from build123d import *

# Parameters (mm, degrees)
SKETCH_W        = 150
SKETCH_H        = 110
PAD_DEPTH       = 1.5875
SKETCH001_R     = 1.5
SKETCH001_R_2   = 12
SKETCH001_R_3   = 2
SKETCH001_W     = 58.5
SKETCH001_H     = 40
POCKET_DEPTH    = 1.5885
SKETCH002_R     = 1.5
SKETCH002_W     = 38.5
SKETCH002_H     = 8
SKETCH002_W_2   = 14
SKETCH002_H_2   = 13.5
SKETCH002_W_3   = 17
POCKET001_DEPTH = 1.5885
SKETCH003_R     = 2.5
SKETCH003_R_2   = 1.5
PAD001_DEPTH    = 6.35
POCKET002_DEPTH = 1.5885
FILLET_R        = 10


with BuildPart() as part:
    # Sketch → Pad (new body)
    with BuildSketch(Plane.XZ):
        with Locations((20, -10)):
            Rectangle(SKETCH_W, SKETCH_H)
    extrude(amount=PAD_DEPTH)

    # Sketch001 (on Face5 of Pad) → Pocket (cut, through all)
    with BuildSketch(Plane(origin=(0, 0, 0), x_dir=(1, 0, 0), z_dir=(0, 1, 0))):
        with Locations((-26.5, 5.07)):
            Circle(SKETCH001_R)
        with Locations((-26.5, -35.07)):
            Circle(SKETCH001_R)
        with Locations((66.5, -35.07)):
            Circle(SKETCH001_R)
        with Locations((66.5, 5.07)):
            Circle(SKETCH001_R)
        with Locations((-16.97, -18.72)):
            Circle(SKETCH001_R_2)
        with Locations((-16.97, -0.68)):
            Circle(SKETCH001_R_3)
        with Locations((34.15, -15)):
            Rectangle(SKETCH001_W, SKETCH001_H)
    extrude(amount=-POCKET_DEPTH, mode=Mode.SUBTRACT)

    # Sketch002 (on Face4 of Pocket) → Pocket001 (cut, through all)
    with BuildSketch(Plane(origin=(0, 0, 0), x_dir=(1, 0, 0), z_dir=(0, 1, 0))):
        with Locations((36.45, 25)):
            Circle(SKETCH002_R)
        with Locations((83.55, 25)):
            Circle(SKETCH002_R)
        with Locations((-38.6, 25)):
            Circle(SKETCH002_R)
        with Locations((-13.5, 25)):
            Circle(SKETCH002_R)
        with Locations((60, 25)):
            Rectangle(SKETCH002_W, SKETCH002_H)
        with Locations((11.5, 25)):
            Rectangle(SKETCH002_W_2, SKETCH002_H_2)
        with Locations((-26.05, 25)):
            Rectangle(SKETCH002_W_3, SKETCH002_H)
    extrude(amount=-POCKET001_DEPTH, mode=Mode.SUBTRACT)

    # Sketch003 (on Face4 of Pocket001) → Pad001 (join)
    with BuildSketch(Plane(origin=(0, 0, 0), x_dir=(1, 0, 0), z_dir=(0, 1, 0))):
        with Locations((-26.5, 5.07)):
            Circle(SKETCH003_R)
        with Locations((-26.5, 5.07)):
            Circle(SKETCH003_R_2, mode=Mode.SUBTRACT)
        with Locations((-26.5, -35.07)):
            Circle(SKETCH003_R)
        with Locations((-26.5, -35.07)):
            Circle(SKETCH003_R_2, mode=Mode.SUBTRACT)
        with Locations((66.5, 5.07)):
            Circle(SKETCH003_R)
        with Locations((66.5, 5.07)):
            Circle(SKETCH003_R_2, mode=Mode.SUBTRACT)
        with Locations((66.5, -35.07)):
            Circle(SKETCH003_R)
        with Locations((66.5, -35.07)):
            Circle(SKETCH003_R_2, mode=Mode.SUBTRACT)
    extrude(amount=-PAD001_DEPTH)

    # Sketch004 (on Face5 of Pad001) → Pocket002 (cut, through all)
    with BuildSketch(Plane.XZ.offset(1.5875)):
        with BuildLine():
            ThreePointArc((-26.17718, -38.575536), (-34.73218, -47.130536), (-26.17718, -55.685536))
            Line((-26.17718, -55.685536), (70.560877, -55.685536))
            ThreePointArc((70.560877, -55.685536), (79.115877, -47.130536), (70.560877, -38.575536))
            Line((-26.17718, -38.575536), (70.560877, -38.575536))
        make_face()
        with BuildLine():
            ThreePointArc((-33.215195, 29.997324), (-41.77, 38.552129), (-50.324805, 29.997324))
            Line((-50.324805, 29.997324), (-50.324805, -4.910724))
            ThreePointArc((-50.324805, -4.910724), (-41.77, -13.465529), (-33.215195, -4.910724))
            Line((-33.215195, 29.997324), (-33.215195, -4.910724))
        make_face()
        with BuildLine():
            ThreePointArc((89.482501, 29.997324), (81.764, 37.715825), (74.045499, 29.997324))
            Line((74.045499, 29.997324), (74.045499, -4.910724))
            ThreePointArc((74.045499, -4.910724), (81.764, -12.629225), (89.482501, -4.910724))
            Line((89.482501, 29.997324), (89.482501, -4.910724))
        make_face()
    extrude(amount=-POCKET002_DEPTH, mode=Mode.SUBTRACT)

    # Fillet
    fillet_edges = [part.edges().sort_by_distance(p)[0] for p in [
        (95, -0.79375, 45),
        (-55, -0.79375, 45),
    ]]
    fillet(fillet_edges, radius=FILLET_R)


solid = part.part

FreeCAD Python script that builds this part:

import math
import FreeCAD as App
import Part
import Sketcher
from FreeCAD import Vector
Q = App.Units.Quantity


def edges_at(feature, points):
    """Names of the edges that pass closest to the given points."""
    edges = feature.Shape.Edges
    near = lambda p: min(range(len(edges)), key=lambda i: edges[i].distToShape(Part.Vertex(*p))[0])
    return sorted({f"Edge{near(p) + 1}" for p in points})

doc = App.newDocument("Part")
body = doc.addObject("PartDesign::Body", "Body")

# Sketch on XZ plane
sketch1 = body.newObject("Sketcher::SketchObject", "Sketch")
sketch1.AttachmentSupport = (doc.getObject("XZ_Plane"), [""])
sketch1.MapMode = "FlatFace"
sketch1.addGeometry(Part.LineSegment(Vector(-55, 45, 0), Vector(-55, -65, 0)), False)
sketch1.addGeometry(Part.LineSegment(Vector(-55, -65, 0), Vector(95, -65, 0)), False)
sketch1.addGeometry(Part.LineSegment(Vector(95, -65, 0), Vector(95, 45, 0)), False)
sketch1.addGeometry(Part.LineSegment(Vector(95, 45, 0), Vector(-55, 45, 0)), False)
sketch1.addConstraint(Sketcher.Constraint("Coincident", 0, 2, 1, 1))
sketch1.addConstraint(Sketcher.Constraint("Coincident", 1, 2, 2, 1))
sketch1.addConstraint(Sketcher.Constraint("Coincident", 2, 2, 3, 1))
sketch1.addConstraint(Sketcher.Constraint("Coincident", 3, 2, 0, 1))
sketch1.addConstraint(Sketcher.Constraint("Vertical", 0))
sketch1.addConstraint(Sketcher.Constraint("Horizontal", 1))
sketch1.addConstraint(Sketcher.Constraint("Vertical", 2))
sketch1.addConstraint(Sketcher.Constraint("Horizontal", 3))
sketch1.addConstraint(Sketcher.Constraint("DistanceX", 1, 1, 1, 2, Q("150 mm")))
sketch1.addConstraint(Sketcher.Constraint("DistanceY", 0, 2, 0, 1, Q("110 mm")))
sketch1.addConstraint(Sketcher.Constraint("DistanceX", 0, 2, -1, 1, Q("55 mm")))
sketch1.addConstraint(Sketcher.Constraint("DistanceY", 0, 2, -1, 1, Q("65 mm")))
pad1 = body.newObject("PartDesign::Pad", "Pad")
pad1.Profile = sketch1
pad1.Length = 1.5875

# Sketch on XZ plane
sketch2 = body.newObject("Sketcher::SketchObject", "Sketch001")
sketch2.AttachmentSupport = (doc.getObject("XZ_Plane"), [""])
sketch2.MapMode = "FlatFace"
sketch2.addGeometry(Part.Circle(Vector(-26.5, -5.1, 0), Vector(0, 0, 1), 1.5), False)
sketch2.addGeometry(Part.Circle(Vector(-26.5, 35.1, 0), Vector(0, 0, 1), 1.5), False)
sketch2.addGeometry(Part.Circle(Vector(66.5, 35.1, 0), Vector(0, 0, 1), 1.5), False)
sketch2.addGeometry(Part.Circle(Vector(66.5, -5.1, 0), Vector(0, 0, 1), 1.5), False)
sketch2.addGeometry(Part.Circle(Vector(-17, 18.7, 0), Vector(0, 0, 1), 12), False)
sketch2.addGeometry(Part.Circle(Vector(-17, 0.7, 0), Vector(0, 0, 1), 2), False)
sketch2.addGeometry(Part.LineSegment(Vector(4.9, -5, 0), Vector(4.9, 35, 0)), False)
sketch2.addGeometry(Part.LineSegment(Vector(4.9, 35, 0), Vector(63.4, 35, 0)), False)
sketch2.addGeometry(Part.LineSegment(Vector(63.4, 35, 0), Vector(63.4, -5, 0)), False)
sketch2.addGeometry(Part.LineSegment(Vector(63.4, -5, 0), Vector(4.9, -5, 0)), False)
sketch2.addConstraint(Sketcher.Constraint("Coincident", 6, 2, 7, 1))
sketch2.addConstraint(Sketcher.Constraint("Coincident", 7, 2, 8, 1))
sketch2.addConstraint(Sketcher.Constraint("Coincident", 8, 2, 9, 1))
sketch2.addConstraint(Sketcher.Constraint("Coincident", 9, 2, 6, 1))
sketch2.addConstraint(Sketcher.Constraint("Vertical", 6))
sketch2.addConstraint(Sketcher.Constraint("Horizontal", 7))
sketch2.addConstraint(Sketcher.Constraint("Vertical", 8))
sketch2.addConstraint(Sketcher.Constraint("Horizontal", 9))
sketch2.addConstraint(Sketcher.Constraint("Equal", 0, 1))
sketch2.addConstraint(Sketcher.Constraint("Equal", 1, 2))
sketch2.addConstraint(Sketcher.Constraint("Equal", 2, 3))
sketch2.addConstraint(Sketcher.Constraint("Horizontal", 1, 3, 2, 3))
sketch2.addConstraint(Sketcher.Constraint("Horizontal", 0, 3, 3, 3))
sketch2.addConstraint(Sketcher.Constraint("Vertical", 0, 3, 1, 3))
sketch2.addConstraint(Sketcher.Constraint("Vertical", 2, 3, 3, 3))
sketch2.addConstraint(Sketcher.Constraint("Vertical", 4, 3, 5, 3))
sketch2.addConstraint(Sketcher.Constraint("Diameter", 0, Q("3 mm")))
sketch2.addConstraint(Sketcher.Constraint("Diameter", 4, Q("24 mm")))
sketch2.addConstraint(Sketcher.Constraint("Diameter", 5, Q("4 mm")))
sketch2.addConstraint(Sketcher.Constraint("DistanceY", 6, 1, 6, 2, Q("40 mm")))
sketch2.addConstraint(Sketcher.Constraint("DistanceX", 7, 1, 7, 2, Q("58.5 mm")))
sketch2.addConstraint(Sketcher.Constraint("DistanceY", -1, 1, 6, 2, Q("35 mm")))
sketch2.addConstraint(Sketcher.Constraint("DistanceX", 1, 3, 2, 3, Q("93 mm")))
sketch2.addConstraint(Sketcher.Constraint("DistanceX", 0, 3, -1, 1, Q("26.5 mm")))
sketch2.addConstraint(Sketcher.Constraint("DistanceX", -1, 1, 6, 2, Q("4.9 mm")))
sketch2.addConstraint(Sketcher.Constraint("DistanceY", 0, 3, -1, 1, Q("5.07 mm")))
sketch2.addConstraint(Sketcher.Constraint("DistanceY", -1, 1, 1, 3, Q("35.07 mm")))
sketch2.addConstraint(Sketcher.Constraint("DistanceX", 4, 3, -1, 1, Q("16.97 mm")))
sketch2.addConstraint(Sketcher.Constraint("DistanceY", -1, 1, 4, 3, Q("18.72 mm")))
sketch2.addConstraint(Sketcher.Constraint("DistanceY", -1, 1, 5, 3, Q("0.68 mm")))
pocket1 = body.newObject("PartDesign::Pocket", "Pocket")
pocket1.Profile = sketch2
pocket1.Type = "ThroughAll"
pocket1.Reversed = True

# Sketch on XZ plane
sketch3 = body.newObject("Sketcher::SketchObject", "Sketch002")
sketch3.AttachmentSupport = (doc.getObject("XZ_Plane"), [""])
sketch3.MapMode = "FlatFace"
sketch3.addGeometry(Part.Circle(Vector(36.5, -25, 0), Vector(0, 0, 1), 1.5), False)
sketch3.addGeometry(Part.Circle(Vector(83.5, -25, 0), Vector(0, 0, 1), 1.5), False)
sketch3.addGeometry(Part.Circle(Vector(-38.6, -25, 0), Vector(0, 0, 1), 1.5), False)
sketch3.addGeometry(Part.Circle(Vector(-13.5, -25, 0), Vector(0, 0, 1), 1.5), False)
sketch3.addGeometry(Part.LineSegment(Vector(40.8, -29, 0), Vector(40.8, -21, 0)), False)
sketch3.addGeometry(Part.LineSegment(Vector(40.8, -21, 0), Vector(79.2, -21, 0)), False)
sketch3.addGeometry(Part.LineSegment(Vector(79.2, -21, 0), Vector(79.2, -29, 0)), False)
sketch3.addGeometry(Part.LineSegment(Vector(79.2, -29, 0), Vector(40.8, -29, 0)), False)
sketch3.addGeometry(Part.LineSegment(Vector(4.5, -31.8, 0), Vector(4.5, -18.2, 0)), False)
sketch3.addGeometry(Part.LineSegment(Vector(4.5, -18.2, 0), Vector(18.5, -18.2, 0)), False)
sketch3.addGeometry(Part.LineSegment(Vector(18.5, -18.2, 0), Vector(18.5, -31.8, 0)), False)
sketch3.addGeometry(Part.LineSegment(Vector(18.5, -31.8, 0), Vector(4.5, -31.8, 0)), False)
sketch3.addGeometry(Part.LineSegment(Vector(-34.5, -29, 0), Vector(-34.5, -21, 0)), False)
sketch3.addGeometry(Part.LineSegment(Vector(-34.5, -21, 0), Vector(-17.6, -21, 0)), False)
sketch3.addGeometry(Part.LineSegment(Vector(-17.6, -21, 0), Vector(-17.6, -29, 0)), False)
sketch3.addGeometry(Part.LineSegment(Vector(-17.6, -29, 0), Vector(-34.5, -29, 0)), False)
sketch3.addConstraint(Sketcher.Constraint("Coincident", 4, 2, 5, 1))
sketch3.addConstraint(Sketcher.Constraint("Coincident", 5, 2, 6, 1))
sketch3.addConstraint(Sketcher.Constraint("Coincident", 6, 2, 7, 1))
sketch3.addConstraint(Sketcher.Constraint("Coincident", 7, 2, 4, 1))
sketch3.addConstraint(Sketcher.Constraint("Coincident", 8, 2, 9, 1))
sketch3.addConstraint(Sketcher.Constraint("Coincident", 9, 2, 10, 1))
sketch3.addConstraint(Sketcher.Constraint("Coincident", 10, 2, 11, 1))
sketch3.addConstraint(Sketcher.Constraint("Coincident", 11, 2, 8, 1))
sketch3.addConstraint(Sketcher.Constraint("Coincident", 12, 2, 13, 1))
sketch3.addConstraint(Sketcher.Constraint("Coincident", 13, 2, 14, 1))
sketch3.addConstraint(Sketcher.Constraint("Coincident", 14, 2, 15, 1))
sketch3.addConstraint(Sketcher.Constraint("Coincident", 15, 2, 12, 1))
sketch3.addConstraint(Sketcher.Constraint("Vertical", 4))
sketch3.addConstraint(Sketcher.Constraint("Horizontal", 5))
sketch3.addConstraint(Sketcher.Constraint("Vertical", 6))
sketch3.addConstraint(Sketcher.Constraint("Horizontal", 7))
sketch3.addConstraint(Sketcher.Constraint("Vertical", 8))
sketch3.addConstraint(Sketcher.Constraint("Horizontal", 9))
sketch3.addConstraint(Sketcher.Constraint("Vertical", 10))
sketch3.addConstraint(Sketcher.Constraint("Horizontal", 11))
sketch3.addConstraint(Sketcher.Constraint("Vertical", 12))
sketch3.addConstraint(Sketcher.Constraint("Horizontal", 13))
sketch3.addConstraint(Sketcher.Constraint("Vertical", 14))
sketch3.addConstraint(Sketcher.Constraint("Horizontal", 15))
sketch3.addConstraint(Sketcher.Constraint("Equal", 0, 1))
sketch3.addConstraint(Sketcher.Constraint("Equal", 1, 2))
sketch3.addConstraint(Sketcher.Constraint("Equal", 2, 3))
sketch3.addConstraint(Sketcher.Constraint("Horizontal", 0, 3, 1, 3))
sketch3.addConstraint(Sketcher.Constraint("Horizontal", 1, 3, 2, 3))
sketch3.addConstraint(Sketcher.Constraint("Horizontal", 2, 3, 3, 3))
sketch3.addConstraint(Sketcher.Constraint("Horizontal", 5, 2, 12, 2))
sketch3.addConstraint(Sketcher.Constraint("Horizontal", 7, 2, 14, 2))
sketch3.addConstraint(Sketcher.Constraint("Diameter", 0, Q("3 mm")))
sketch3.addConstraint(Sketcher.Constraint("DistanceX", 9, 1, 9, 2, Q("14 mm")))
sketch3.addConstraint(Sketcher.Constraint("DistanceX", 13, 1, 13, 2, Q("17 mm")))
sketch3.addConstraint(Sketcher.Constraint("DistanceY", 4, 1, 4, 2, Q("8 mm")))
sketch3.addConstraint(Sketcher.Constraint("DistanceX", 5, 1, 5, 2, Q("38.5 mm")))
sketch3.addConstraint(Sketcher.Constraint("DistanceY", 8, 1, 8, 2, Q("13.5 mm")))
sketch3.addConstraint(Sketcher.Constraint("DistanceY", 0, 3, -1, 1, Q("25 mm")))
sketch3.addConstraint(Sketcher.Constraint("DistanceY", 4, 2, -1, 1, Q("21 mm")))
sketch3.addConstraint(Sketcher.Constraint("DistanceX", 3, 3, 8, 2, Q("18 mm")))
sketch3.addConstraint(Sketcher.Constraint("DistanceX", 2, 3, -1, 1, Q("38.6 mm")))
sketch3.addConstraint(Sketcher.Constraint("DistanceX", 3, 3, -1, 1, Q("13.5 mm")))
sketch3.addConstraint(Sketcher.Constraint("DistanceX", 0, 3, 1, 3, Q("47.1 mm")))
sketch3.addConstraint(Sketcher.Constraint("DistanceX", 0, 3, 4, 2, Q("4.3 mm")))
sketch3.addConstraint(Sketcher.Constraint("DistanceX", -1, 1, 0, 3, Q("36.45 mm")))
sketch3.addConstraint(Sketcher.Constraint("DistanceY", 8, 2, -1, 1, Q("18.25 mm")))
sketch3.addConstraint(Sketcher.Constraint("DistanceX", 12, 2, -1, 1, Q("34.55 mm")))
pocket2 = body.newObject("PartDesign::Pocket", "Pocket001")
pocket2.Profile = sketch3
pocket2.Type = "ThroughAll"
pocket2.Reversed = True

# Sketch on XZ plane
sketch4 = body.newObject("Sketcher::SketchObject", "Sketch003")
sketch4.AttachmentSupport = (doc.getObject("XZ_Plane"), [""])
sketch4.MapMode = "FlatFace"
sketch4.addGeometry(Part.Circle(Vector(-26.5, -5.1, 0), Vector(0, 0, 1), 2.5), False)
sketch4.addGeometry(Part.Circle(Vector(-26.5, -5.1, 0), Vector(0, 0, 1), 1.5), False)
sketch4.addGeometry(Part.Circle(Vector(-26.5, 35.1, 0), Vector(0, 0, 1), 2.5), False)
sketch4.addGeometry(Part.Circle(Vector(-26.5, 35.1, 0), Vector(0, 0, 1), 1.5), False)
sketch4.addGeometry(Part.Circle(Vector(66.5, -5.1, 0), Vector(0, 0, 1), 2.5), False)
sketch4.addGeometry(Part.Circle(Vector(66.5, -5.1, 0), Vector(0, 0, 1), 1.5), False)
sketch4.addGeometry(Part.Circle(Vector(66.5, 35.1, 0), Vector(0, 0, 1), 2.5), False)
sketch4.addGeometry(Part.Circle(Vector(66.5, 35.1, 0), Vector(0, 0, 1), 1.5), False)
sketch4.addConstraint(Sketcher.Constraint("Coincident", 1, 3, 0, 3))
sketch4.addConstraint(Sketcher.Constraint("Coincident", 3, 3, 2, 3))
sketch4.addConstraint(Sketcher.Constraint("Coincident", 5, 3, 4, 3))
sketch4.addConstraint(Sketcher.Constraint("Coincident", 7, 3, 6, 3))
sketch4.addConstraint(Sketcher.Constraint("Equal", 0, 2))
sketch4.addConstraint(Sketcher.Constraint("Equal", 1, 3))
sketch4.addConstraint(Sketcher.Constraint("Equal", 2, 4))
sketch4.addConstraint(Sketcher.Constraint("Equal", 3, 5))
sketch4.addConstraint(Sketcher.Constraint("Equal", 4, 6))
sketch4.addConstraint(Sketcher.Constraint("Equal", 5, 7))
sketch4.addConstraint(Sketcher.Constraint("Horizontal", 1, 3, 4, 3))
sketch4.addConstraint(Sketcher.Constraint("Horizontal", 3, 3, 6, 3))
sketch4.addConstraint(Sketcher.Constraint("Vertical", 1, 3, 2, 3))
sketch4.addConstraint(Sketcher.Constraint("Vertical", 5, 3, 6, 3))
sketch4.addConstraint(Sketcher.Constraint("Diameter", 0, Q("5 mm")))
sketch4.addConstraint(Sketcher.Constraint("Diameter", 1, Q("3 mm")))
sketch4.addConstraint(Sketcher.Constraint("DistanceX", 0, 3, 4, 3, Q("93 mm")))
sketch4.addConstraint(Sketcher.Constraint("DistanceX", 0, 3, -1, 1, Q("26.5 mm")))
sketch4.addConstraint(Sketcher.Constraint("DistanceY", 0, 3, -1, 1, Q("5.07 mm")))
sketch4.addConstraint(Sketcher.Constraint("DistanceY", -1, 1, 2, 3, Q("35.07 mm")))
pad2 = body.newObject("PartDesign::Pad", "Pad001")
pad2.Profile = sketch4
pad2.Length = 6.35

# Sketch on XZ plane
sketch5 = body.newObject("Sketcher::SketchObject", "Sketch004")
sketch5.AttachmentSupport = (doc.getObject("XZ_Plane"), [""])
sketch5.MapMode = "FlatFace"
sketch5.AttachmentOffset = App.Placement(Vector(0, 0, 1.5875), App.Rotation())
sketch5.addGeometry(Part.ArcOfCircle(Part.Circle(Vector(-26, -47, 0), Vector(0, 0, 1), 9), math.radians(90), math.radians(270)), False)
sketch5.addGeometry(Part.LineSegment(Vector(-26, -56, 0), Vector(71, -56, 0)), False)
sketch5.addGeometry(Part.ArcOfCircle(Part.Circle(Vector(71, -47, 0), Vector(0, 0, 1), 9), math.radians(-90), math.radians(90)), False)
sketch5.addGeometry(Part.LineSegment(Vector(71, -39, 0), Vector(-26, -39, 0)), False)
sketch5.addGeometry(Part.ArcOfCircle(Part.Circle(Vector(-42, 30, 0), Vector(0, 0, 1), 9), math.radians(0), math.radians(180)), False)
sketch5.addGeometry(Part.LineSegment(Vector(-50, 30, 0), Vector(-50, -5, 0)), False)
sketch5.addGeometry(Part.ArcOfCircle(Part.Circle(Vector(-42, -5, 0), Vector(0, 0, 1), 9), math.radians(180), math.radians(360)), False)
sketch5.addGeometry(Part.LineSegment(Vector(-33, -5, 0), Vector(-33, 30, 0)), False)
sketch5.addGeometry(Part.ArcOfCircle(Part.Circle(Vector(82, 30, 0), Vector(0, 0, 1), 8), math.radians(0), math.radians(180)), False)
sketch5.addGeometry(Part.LineSegment(Vector(74, 30, 0), Vector(74, -5, 0)), False)
sketch5.addGeometry(Part.ArcOfCircle(Part.Circle(Vector(82, -5, 0), Vector(0, 0, 1), 8), math.radians(180), math.radians(360)), False)
sketch5.addGeometry(Part.LineSegment(Vector(89, -5, 0), Vector(89, 30, 0)), False)
sketch5.addConstraint(Sketcher.Constraint("Tangent", 0, 2, 1, 1))
sketch5.addConstraint(Sketcher.Constraint("Tangent", 1, 2, 2, 1))
sketch5.addConstraint(Sketcher.Constraint("Tangent", 2, 2, 3, 1))
sketch5.addConstraint(Sketcher.Constraint("Tangent", 3, 2, 0, 1))
sketch5.addConstraint(Sketcher.Constraint("Tangent", 4, 2, 5, 1))
sketch5.addConstraint(Sketcher.Constraint("Tangent", 5, 2, 6, 1))
sketch5.addConstraint(Sketcher.Constraint("Tangent", 6, 2, 7, 1))
sketch5.addConstraint(Sketcher.Constraint("Tangent", 7, 2, 4, 1))
sketch5.addConstraint(Sketcher.Constraint("Tangent", 8, 2, 9, 1))
sketch5.addConstraint(Sketcher.Constraint("Tangent", 9, 2, 10, 1))
sketch5.addConstraint(Sketcher.Constraint("Tangent", 10, 2, 11, 1))
sketch5.addConstraint(Sketcher.Constraint("Tangent", 11, 2, 8, 1))
sketch5.addConstraint(Sketcher.Constraint("Horizontal", 1))
sketch5.addConstraint(Sketcher.Constraint("Horizontal", 3))
sketch5.addConstraint(Sketcher.Constraint("Vertical", 5))
sketch5.addConstraint(Sketcher.Constraint("Vertical", 7))
sketch5.addConstraint(Sketcher.Constraint("Vertical", 9))
sketch5.addConstraint(Sketcher.Constraint("Vertical", 11))
sketch5.addConstraint(Sketcher.Constraint("Horizontal", 4, 3, 8, 3))
sketch5.addConstraint(Sketcher.Constraint("Horizontal", 6, 3, 10, 3))
sketch5.addConstraint(Sketcher.Constraint("Radius", 0, Q("8.555 mm")))
sketch5.addConstraint(Sketcher.Constraint("Radius", 8, Q("7.718501 mm")))
sketch5.addConstraint(Sketcher.Constraint("DistanceX", 4, 3, -1, 1, Q("41.77 mm")))
sketch5.addConstraint(Sketcher.Constraint("DistanceX", -1, 1, 8, 3, Q("81.764 mm")))
sketch5.addConstraint(Sketcher.Constraint("Radius", 4, Q("8.554805 mm")))
sketch5.addConstraint(Sketcher.Constraint("DistanceX", 1, 1, 1, 2, Q("96.738057 mm")))
sketch5.addConstraint(Sketcher.Constraint("DistanceY", 5, 2, 5, 1, Q("34.908048 mm")))
sketch5.addConstraint(Sketcher.Constraint("DistanceX", 0, 3, -1, 1, Q("26.17718 mm")))
sketch5.addConstraint(Sketcher.Constraint("DistanceY", 0, 3, 4, 3, Q("77.12786 mm")))
sketch5.addConstraint(Sketcher.Constraint("DistanceY", 0, 3, -1, 1, Q("47.130536 mm")))
pocket3 = body.newObject("PartDesign::Pocket", "Pocket002")
pocket3.Profile = sketch5
pocket3.Type = "ThroughAll"
doc.recompute()

fillet = body.newObject("PartDesign::Fillet", "Fillet")
fillet.Base = (pocket3, edges_at(pocket3, [(95, -0.794, 45), (-55, -0.794, 45)]))
fillet.Radius = 10

doc.recompute()
